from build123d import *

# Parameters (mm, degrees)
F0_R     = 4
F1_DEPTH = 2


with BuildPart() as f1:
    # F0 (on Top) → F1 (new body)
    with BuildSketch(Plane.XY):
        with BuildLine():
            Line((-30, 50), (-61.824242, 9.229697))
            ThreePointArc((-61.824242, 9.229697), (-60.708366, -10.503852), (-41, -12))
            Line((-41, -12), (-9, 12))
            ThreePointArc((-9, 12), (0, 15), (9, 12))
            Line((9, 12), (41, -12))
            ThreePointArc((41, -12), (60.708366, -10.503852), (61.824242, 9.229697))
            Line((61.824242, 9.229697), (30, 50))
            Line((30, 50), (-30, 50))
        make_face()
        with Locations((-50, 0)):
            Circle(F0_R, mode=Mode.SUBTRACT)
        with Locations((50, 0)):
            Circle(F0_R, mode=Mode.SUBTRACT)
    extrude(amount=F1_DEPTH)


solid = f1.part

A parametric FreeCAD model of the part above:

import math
import FreeCAD as App
import Part
import Sketcher
from FreeCAD import Vector
Q = App.Units.Quantity

doc = App.newDocument("Part")
body = doc.addObject("PartDesign::Body", "Body")

# Sketch on XY plane
sketch1 = doc.addObject("Sketcher::SketchObject", "Sketch")
body.addObject(sketch1)
sketch1.AttachmentSupport = (doc.XY_Plane, [""])
sketch1.MapMode = "FlatFace"
sketch1.addGeometry(Part.LineSegment(Vector(-30, 50, 0), Vector(-61.8, 9.2, 0)), False)
sketch1.addGeometry(Part.ArcOfCircle(Part.Circle(Vector(-50, 0, 0), Vector(0, 0, 1), 15), math.radians(142), math.radians(307)), False)
sketch1.addGeometry(Part.LineSegment(Vector(-41, -12, 0), Vector(-9, 12, 0)), False)
sketch1.addGeometry(Part.ArcOfCircle(Part.Circle(Vector(0, 0, 0), Vector(0, 0, 1), 15), math.radians(53), math.radians(127)), False)
sketch1.addGeometry(Part.LineSegment(Vector(9, 12, 0), Vector(41, -12, 0)), False)
sketch1.addGeometry(Part.ArcOfCircle(Part.Circle(Vector(50, 0, 0), Vector(0, 0, 1), 15), math.radians(-127), math.radians(38)), False)
sketch1.addGeometry(Part.LineSegment(Vector(61.8, 9.2, 0), Vector(30, 50, 0)), False)
sketch1.addGeometry(Part.LineSegment(Vector(30, 50, 0), Vector(-30, 50, 0)), False)
sketch1.addGeometry(Part.Circle(Vector(-50, 0, 0), Vector(0, 0, 1), 4), False)
sketch1.addGeometry(Part.Circle(Vector(50, 0, 0), Vector(0, 0, 1), 4), False)
sketch1.addConstraint(Sketcher.Constraint("Tangent", 0, 2, 1, 1))
sketch1.addConstraint(Sketcher.Constraint("Tangent", 1, 2, 2, 1))
sketch1.addConstraint(Sketcher.Constraint("Tangent", 2, 2, 3, 2))
sketch1.addConstraint(Sketcher.Constraint("Tangent", 3, 1, 4, 1))
sketch1.addConstraint(Sketcher.Constraint("Tangent", 4, 2, 5, 1))
sketch1.addConstraint(Sketcher.Constraint("Tangent", 5, 2, 6, 1))
sketch1.addConstraint(Sketcher.Constraint("Coincident", 6, 2, 7, 1))
sketch1.addConstraint(Sketcher.Constraint("Coincident", 7, 2, 0, 1))
sketch1.addConstraint(Sketcher.Constraint("Horizontal", 7))
sketch1.addConstraint(Sketcher.Constraint("Coincident", 3, 3, -1, 1))
sketch1.addConstraint(Sketcher.Constraint("Coincident", 8, 3, 1, 3))
sketch1.addConstraint(Sketcher.Constraint("Coincident", 9, 3, 5, 3))
sketch1.addConstraint(Sketcher.Constraint("Equal", 1, 3))
sketch1.addConstraint(Sketcher.Constraint("Equal", 3, 5))
sketch1.addConstraint(Sketcher.Constraint("Equal", 8, 9))
sketch1.addConstraint(Sketcher.Constraint("Symmetric", 1, 3, 5, 3, -1, 1))
sketch1.addConstraint(Sketcher.Constraint("Symmetric", 0, 2, 5, 2, -2))
sketch1.addConstraint(Sketcher.Constraint("Diameter", 8, Q("8 mm")))
sketch1.addConstraint(Sketcher.Constraint("Radius", 1, Q("15 mm")))
sketch1.addConstraint(Sketcher.Constraint("DistanceX", 7, 2, 7, 1, Q("60 mm")))
sketch1.addConstraint(Sketcher.Constraint("Distance", 2, Q("40 mm")))
sketch1.addConstraint(Sketcher.Constraint("DistanceY", -1, 1, 6, 2, Q("50 mm")))
pad1 = doc.addObject("PartDesign::Pad", "Pad")
body.addObject(pad1)
pad1.Profile = sketch1
pad1.Length = 2

doc.recompute()
